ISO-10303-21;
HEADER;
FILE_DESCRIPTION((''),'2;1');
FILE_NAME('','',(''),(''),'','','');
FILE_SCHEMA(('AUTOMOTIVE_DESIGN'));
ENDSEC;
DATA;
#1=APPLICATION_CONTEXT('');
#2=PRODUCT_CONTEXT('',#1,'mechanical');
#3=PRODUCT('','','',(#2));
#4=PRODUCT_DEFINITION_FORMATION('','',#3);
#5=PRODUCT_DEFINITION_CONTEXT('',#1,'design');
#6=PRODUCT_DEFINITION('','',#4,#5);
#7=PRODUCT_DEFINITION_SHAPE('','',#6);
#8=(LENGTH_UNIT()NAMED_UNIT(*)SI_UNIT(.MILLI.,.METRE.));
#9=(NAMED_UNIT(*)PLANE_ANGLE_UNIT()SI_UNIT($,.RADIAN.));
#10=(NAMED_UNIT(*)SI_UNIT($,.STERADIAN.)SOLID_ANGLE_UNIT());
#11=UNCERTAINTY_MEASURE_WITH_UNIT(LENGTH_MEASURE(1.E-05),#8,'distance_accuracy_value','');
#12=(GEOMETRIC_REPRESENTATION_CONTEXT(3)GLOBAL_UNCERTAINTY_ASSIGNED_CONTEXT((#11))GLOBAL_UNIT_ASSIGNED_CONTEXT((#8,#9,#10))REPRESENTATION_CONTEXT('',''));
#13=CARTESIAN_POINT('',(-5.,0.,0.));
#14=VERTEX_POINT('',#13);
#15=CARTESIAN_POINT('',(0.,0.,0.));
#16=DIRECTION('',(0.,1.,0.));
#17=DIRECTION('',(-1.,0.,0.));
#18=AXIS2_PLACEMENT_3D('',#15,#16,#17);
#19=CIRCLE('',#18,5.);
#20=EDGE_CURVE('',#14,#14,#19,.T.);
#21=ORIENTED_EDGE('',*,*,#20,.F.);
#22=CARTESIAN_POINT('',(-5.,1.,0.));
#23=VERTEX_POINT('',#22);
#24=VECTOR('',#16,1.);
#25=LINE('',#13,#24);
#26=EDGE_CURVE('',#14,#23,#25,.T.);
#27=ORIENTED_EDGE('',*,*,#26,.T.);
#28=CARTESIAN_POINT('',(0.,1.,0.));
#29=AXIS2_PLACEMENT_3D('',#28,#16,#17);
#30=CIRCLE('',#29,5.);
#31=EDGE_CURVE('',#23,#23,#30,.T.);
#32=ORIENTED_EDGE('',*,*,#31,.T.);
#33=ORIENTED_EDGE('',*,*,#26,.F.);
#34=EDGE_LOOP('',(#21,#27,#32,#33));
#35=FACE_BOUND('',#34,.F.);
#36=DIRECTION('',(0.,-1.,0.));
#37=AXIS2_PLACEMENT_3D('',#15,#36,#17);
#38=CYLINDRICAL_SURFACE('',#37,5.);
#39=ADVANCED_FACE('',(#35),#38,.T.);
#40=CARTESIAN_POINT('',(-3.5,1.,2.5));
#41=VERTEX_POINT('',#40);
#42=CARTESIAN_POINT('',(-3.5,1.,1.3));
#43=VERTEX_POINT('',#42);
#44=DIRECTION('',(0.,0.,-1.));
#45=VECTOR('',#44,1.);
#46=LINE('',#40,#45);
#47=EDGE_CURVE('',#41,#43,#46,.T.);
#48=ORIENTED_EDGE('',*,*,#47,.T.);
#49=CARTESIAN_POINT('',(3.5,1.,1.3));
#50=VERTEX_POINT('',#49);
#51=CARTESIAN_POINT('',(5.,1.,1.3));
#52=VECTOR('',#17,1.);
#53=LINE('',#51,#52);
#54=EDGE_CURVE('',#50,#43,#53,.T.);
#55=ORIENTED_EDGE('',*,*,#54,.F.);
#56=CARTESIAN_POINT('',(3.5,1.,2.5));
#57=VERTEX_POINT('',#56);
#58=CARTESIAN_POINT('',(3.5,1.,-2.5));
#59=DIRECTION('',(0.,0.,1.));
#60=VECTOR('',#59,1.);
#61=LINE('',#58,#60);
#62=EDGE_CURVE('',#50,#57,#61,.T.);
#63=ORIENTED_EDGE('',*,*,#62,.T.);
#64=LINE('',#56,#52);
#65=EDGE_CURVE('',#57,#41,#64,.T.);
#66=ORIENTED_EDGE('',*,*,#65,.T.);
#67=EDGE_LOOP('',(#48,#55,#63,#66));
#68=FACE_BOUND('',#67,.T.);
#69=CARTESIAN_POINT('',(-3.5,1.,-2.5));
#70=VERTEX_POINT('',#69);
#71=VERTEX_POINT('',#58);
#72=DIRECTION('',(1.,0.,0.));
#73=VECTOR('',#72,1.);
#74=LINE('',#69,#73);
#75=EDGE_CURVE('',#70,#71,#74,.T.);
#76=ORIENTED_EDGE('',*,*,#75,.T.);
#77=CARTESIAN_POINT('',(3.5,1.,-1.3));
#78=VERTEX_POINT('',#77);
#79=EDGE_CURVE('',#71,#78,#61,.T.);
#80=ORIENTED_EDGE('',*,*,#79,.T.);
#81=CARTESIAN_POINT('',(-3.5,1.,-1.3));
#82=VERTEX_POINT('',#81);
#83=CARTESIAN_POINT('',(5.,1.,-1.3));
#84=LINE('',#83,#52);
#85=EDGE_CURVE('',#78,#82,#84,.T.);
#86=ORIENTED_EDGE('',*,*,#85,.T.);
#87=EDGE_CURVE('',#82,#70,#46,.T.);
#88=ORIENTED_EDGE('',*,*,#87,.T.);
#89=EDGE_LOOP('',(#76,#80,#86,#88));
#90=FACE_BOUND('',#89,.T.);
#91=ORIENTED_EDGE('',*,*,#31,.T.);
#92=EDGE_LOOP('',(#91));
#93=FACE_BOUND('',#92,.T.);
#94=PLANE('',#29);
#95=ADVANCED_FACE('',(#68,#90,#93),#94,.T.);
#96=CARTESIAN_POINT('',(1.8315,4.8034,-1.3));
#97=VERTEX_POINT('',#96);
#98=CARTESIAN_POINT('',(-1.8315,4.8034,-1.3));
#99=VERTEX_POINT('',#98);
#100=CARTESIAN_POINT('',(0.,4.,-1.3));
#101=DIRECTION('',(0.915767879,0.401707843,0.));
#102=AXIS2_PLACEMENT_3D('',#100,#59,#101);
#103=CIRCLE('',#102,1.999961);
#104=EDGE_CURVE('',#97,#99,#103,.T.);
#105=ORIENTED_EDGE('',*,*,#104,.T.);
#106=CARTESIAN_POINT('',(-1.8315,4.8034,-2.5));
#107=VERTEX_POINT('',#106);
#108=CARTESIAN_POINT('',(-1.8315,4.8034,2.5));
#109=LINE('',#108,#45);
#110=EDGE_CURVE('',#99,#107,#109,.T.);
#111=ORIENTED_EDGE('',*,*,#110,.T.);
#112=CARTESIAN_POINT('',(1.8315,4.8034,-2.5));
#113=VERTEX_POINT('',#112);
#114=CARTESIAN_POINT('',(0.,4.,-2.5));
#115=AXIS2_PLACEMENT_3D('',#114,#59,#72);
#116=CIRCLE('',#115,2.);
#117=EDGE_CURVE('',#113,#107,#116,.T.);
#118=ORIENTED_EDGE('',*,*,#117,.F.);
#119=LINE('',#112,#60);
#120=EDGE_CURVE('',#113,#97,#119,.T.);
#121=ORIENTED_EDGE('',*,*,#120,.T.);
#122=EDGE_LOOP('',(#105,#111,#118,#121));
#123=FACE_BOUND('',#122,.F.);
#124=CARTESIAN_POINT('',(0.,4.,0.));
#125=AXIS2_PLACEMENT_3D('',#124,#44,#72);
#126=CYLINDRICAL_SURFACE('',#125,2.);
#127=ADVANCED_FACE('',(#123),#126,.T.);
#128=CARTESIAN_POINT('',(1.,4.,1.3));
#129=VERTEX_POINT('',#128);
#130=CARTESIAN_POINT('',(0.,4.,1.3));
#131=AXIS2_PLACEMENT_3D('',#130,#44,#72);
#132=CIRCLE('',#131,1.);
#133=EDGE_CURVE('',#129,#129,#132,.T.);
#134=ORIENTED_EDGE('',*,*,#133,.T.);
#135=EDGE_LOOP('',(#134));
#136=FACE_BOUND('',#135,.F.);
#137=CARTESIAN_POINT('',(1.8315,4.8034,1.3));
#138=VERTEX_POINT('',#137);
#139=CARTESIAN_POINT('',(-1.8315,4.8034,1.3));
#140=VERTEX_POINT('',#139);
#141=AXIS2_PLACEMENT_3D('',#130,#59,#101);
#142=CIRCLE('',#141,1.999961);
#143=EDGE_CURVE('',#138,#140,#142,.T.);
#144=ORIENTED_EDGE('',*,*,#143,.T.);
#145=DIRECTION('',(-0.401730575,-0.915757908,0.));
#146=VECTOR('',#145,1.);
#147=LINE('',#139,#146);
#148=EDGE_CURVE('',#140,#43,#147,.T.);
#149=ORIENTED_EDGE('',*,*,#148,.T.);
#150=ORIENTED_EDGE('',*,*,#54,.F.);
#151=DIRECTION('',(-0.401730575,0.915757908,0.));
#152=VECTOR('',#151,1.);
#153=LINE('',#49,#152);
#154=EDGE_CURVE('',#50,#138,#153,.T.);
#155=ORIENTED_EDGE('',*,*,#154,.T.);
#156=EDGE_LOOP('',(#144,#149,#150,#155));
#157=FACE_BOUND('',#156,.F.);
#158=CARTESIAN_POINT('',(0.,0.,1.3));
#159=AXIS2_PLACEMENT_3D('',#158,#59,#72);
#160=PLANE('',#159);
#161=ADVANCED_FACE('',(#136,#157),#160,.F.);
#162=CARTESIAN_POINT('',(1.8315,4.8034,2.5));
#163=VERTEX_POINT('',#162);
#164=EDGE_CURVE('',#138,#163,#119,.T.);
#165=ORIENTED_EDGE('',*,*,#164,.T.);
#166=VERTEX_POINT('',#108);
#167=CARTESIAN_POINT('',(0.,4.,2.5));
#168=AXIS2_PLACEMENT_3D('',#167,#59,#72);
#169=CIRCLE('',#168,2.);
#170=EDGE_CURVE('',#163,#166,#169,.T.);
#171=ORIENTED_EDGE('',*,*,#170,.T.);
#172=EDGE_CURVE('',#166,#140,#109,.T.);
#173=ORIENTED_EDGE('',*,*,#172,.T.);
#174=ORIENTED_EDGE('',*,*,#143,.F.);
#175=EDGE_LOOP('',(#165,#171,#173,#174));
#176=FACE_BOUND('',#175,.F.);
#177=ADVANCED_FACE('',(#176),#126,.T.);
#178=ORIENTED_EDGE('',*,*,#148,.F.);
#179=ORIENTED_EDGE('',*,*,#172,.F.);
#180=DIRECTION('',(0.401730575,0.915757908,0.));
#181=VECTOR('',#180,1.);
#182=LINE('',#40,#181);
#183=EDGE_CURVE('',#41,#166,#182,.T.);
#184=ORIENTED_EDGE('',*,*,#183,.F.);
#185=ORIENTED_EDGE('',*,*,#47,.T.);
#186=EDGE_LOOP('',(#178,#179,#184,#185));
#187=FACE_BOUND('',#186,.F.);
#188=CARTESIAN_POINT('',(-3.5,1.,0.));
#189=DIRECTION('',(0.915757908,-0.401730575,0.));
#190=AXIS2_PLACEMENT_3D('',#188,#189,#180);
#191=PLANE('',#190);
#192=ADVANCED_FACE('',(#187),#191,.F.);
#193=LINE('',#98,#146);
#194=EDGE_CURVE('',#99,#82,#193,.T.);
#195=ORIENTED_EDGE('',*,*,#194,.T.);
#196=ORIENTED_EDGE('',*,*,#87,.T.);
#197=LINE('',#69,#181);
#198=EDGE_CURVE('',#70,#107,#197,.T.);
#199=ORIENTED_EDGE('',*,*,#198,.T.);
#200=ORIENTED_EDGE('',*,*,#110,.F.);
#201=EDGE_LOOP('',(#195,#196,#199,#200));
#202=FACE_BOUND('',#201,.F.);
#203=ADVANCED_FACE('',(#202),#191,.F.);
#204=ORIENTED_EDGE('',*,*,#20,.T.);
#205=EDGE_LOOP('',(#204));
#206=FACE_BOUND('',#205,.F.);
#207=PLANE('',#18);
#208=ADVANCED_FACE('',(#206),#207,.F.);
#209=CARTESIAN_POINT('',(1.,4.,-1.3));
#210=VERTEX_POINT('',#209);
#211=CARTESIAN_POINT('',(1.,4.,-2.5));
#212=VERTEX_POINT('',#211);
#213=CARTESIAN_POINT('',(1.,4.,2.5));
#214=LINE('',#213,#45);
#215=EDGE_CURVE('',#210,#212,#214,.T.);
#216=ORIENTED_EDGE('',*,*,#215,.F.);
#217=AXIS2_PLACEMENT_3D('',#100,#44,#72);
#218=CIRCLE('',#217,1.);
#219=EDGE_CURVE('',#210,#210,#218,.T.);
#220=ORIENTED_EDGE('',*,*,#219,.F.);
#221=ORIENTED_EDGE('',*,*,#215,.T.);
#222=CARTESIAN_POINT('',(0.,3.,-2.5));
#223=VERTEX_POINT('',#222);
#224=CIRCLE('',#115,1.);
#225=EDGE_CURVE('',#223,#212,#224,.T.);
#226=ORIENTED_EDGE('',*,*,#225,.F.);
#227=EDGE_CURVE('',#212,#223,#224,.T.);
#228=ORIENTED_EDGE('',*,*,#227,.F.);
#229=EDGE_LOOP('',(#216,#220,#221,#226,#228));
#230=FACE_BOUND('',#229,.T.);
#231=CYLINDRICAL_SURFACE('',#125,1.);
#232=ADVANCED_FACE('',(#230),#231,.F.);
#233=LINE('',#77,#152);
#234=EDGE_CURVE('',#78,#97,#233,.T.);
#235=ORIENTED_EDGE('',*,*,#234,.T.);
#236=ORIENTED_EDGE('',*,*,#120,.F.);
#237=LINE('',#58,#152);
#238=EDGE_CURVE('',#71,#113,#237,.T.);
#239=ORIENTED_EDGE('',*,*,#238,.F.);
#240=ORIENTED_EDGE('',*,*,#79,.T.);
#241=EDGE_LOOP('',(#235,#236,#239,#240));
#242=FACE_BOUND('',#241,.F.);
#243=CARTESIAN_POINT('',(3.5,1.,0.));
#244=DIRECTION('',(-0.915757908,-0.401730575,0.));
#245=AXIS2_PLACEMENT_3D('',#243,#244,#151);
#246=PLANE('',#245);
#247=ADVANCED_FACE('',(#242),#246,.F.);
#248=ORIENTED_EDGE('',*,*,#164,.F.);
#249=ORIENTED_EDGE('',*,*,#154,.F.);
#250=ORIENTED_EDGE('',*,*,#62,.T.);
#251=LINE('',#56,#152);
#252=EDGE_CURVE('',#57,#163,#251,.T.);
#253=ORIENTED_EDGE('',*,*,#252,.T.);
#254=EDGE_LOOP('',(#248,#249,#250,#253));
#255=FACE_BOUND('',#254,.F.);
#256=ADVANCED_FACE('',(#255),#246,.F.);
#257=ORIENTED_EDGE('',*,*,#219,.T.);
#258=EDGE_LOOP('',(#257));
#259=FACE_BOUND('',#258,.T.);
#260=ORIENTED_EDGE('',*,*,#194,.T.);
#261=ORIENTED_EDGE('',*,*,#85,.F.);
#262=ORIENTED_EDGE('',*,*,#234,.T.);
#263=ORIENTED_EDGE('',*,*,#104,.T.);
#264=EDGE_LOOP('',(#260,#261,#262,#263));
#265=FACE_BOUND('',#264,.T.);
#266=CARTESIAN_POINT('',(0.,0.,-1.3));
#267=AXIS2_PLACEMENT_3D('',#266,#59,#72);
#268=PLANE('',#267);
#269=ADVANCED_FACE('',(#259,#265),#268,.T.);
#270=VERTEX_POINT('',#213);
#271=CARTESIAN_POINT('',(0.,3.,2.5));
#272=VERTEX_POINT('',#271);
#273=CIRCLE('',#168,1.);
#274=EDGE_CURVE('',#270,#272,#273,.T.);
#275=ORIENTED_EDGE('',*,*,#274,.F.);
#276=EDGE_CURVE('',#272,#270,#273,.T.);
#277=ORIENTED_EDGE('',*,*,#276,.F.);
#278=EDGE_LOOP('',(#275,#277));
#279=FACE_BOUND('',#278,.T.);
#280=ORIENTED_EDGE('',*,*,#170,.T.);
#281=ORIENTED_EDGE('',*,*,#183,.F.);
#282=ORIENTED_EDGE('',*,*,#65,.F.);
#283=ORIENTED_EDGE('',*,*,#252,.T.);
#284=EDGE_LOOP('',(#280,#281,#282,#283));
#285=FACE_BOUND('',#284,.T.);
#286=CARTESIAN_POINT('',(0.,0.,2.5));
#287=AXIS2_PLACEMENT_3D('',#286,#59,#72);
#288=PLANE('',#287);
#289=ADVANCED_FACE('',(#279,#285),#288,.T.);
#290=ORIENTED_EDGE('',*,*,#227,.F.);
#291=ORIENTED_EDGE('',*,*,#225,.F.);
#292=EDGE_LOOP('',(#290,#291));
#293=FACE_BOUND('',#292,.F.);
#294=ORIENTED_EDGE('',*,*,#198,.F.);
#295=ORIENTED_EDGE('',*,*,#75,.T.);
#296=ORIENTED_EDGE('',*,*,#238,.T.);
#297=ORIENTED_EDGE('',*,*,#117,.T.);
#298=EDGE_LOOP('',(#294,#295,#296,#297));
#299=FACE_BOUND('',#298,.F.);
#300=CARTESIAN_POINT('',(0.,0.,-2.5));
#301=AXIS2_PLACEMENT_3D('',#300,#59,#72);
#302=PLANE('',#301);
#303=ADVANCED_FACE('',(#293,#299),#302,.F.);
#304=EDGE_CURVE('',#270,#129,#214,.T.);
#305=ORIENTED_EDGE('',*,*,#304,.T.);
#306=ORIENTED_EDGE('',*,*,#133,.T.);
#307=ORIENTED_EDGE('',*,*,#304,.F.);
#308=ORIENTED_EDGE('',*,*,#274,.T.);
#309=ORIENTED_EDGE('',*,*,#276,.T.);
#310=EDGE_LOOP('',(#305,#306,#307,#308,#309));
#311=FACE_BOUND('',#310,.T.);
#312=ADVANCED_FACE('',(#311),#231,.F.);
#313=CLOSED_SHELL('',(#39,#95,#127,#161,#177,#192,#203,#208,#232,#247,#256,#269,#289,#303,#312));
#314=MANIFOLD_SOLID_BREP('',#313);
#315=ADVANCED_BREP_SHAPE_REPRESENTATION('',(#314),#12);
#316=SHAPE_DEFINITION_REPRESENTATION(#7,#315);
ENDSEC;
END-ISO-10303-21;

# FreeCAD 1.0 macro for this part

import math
import FreeCAD as App
import Part
import Sketcher

doc = App.newDocument("Part")
body = doc.addObject("PartDesign::Body", "Body")

sketch1 = doc.addObject("Sketcher::SketchObject", "Sketch")
body.addObject(sketch1)
sketch1.AttachmentSupport = (doc.XZ_Plane, [""])
sketch1.MapMode = "FlatFace"
sketch1.addGeometry(Part.Circle(App.Vector(0, 0, 0), App.Vector(0, 0, 1), 5), False)
sketch1.addConstraint([
    Sketcher.Constraint("Coincident", 0, 3, -1, 1),
    Sketcher.Constraint("Diameter", 0, 10.0),
])
pad1 = doc.addObject("PartDesign::Pad", "Pad")
body.addObject(pad1)
pad1.Profile = sketch1
pad1.Length = 1
pad1.Reversed = True

sketch2 = doc.addObject("Sketcher::SketchObject", "Sketch001")
body.addObject(sketch2)
sketch2.AttachmentSupport = (doc.XY_Plane, [""])
sketch2.MapMode = "FlatFace"
sketch2.addGeometry([
    Part.LineSegment(App.Vector(-3.5, 1, 0), App.Vector(3.5, 1, 0)),
    Part.LineSegment(App.Vector(3.5, 1, 0), App.Vector(1.8315, 4.8034, 0)),
    Part.ArcOfCircle(Part.Circle(App.Vector(0, 4, 0), App.Vector(0, 0, 1), 2), math.radians(23.684987), math.radians(156.315013)),
    Part.LineSegment(App.Vector(-1.8315, 4.8034, 0), App.Vector(-3.5, 1, 0)),
    Part.Circle(App.Vector(0, 4, 0), App.Vector(0, 0, 1), 1),
], False)
sketch2.addConstraint([
    Sketcher.Constraint("Coincident", 0, 2, 1, 1),
    Sketcher.Constraint("Tangent", 1, 2, 2, 1),
    Sketcher.Constraint("Tangent", 2, 2, 3, 1),
    Sketcher.Constraint("Coincident", 3, 2, 0, 1),
    Sketcher.Constraint("Horizontal", 0),
    Sketcher.Constraint("Coincident", 4, 3, 2, 3),
    Sketcher.Constraint("Symmetric", 1, 2, 2, 2, -2),
    Sketcher.Constraint("Diameter", 4, 2.0),
    Sketcher.Constraint("Radius", 2, 2.0),
    Sketcher.Constraint("DistanceY", -1, 1, 2, 3, 4.0),
    Sketcher.Constraint("DistanceX", -1, 1, 0, 2, 3.5),
    Sketcher.Constraint("DistanceY", -1, 1, 0, 2, 1.0),
])
pad2 = doc.addObject("PartDesign::Pad", "Pad001")
body.addObject(pad2)
pad2.Profile = sketch2
pad2.Length = 5
pad2.Midplane = True

sketch3 = doc.addObject("Sketcher::SketchObject", "Sketch002")
body.addObject(sketch3)
sketch3.AttachmentSupport = (doc.XY_Plane, [""])
sketch3.MapMode = "FlatFace"
sketch3.addGeometry([
    Part.ArcOfCircle(Part.Circle(App.Vector(0, 4, 0), App.Vector(0, 0, 1), 1.999961), math.radians(23.684987), math.radians(156.315013)),
    Part.LineSegment(App.Vector(-1.8315, 4.8034, 0), App.Vector(-3.5, 1, 0)),
    Part.LineSegment(App.Vector(-3.5, 1, 0), App.Vector(3.5, 1, 0)),
    Part.LineSegment(App.Vector(3.5, 1, 0), App.Vector(1.8315, 4.8034, 0)),
], False)
sketch3.addConstraint([
    Sketcher.Constraint("Tangent", 0, 2, 1, 1),
    Sketcher.Constraint("Coincident", 1, 2, 2, 1),
    Sketcher.Constraint("Coincident", 2, 2, 3, 1),
    Sketcher.Constraint("Tangent", 3, 2, 0, 1),
    Sketcher.Constraint("Horizontal", 2),
    Sketcher.Constraint("Symmetric", 0, 2, 3, 2, -2),
    Sketcher.Constraint("Radius", 0, 2.0),
    Sketcher.Constraint("DistanceY", -1, 1, 0, 3, 4.0),
    Sketcher.Constraint("DistanceX", 2, 1, 2, 2, 7.0),
    Sketcher.Constraint("DistanceY", -1, 1, 1, 2, 1.0),
])
pocket1 = doc.addObject("PartDesign::Pocket", "Pocket")
body.addObject(pocket1)
pocket1.Profile = sketch3
pocket1.Length = 2.6
pocket1.Midplane = True

doc.recompute()
